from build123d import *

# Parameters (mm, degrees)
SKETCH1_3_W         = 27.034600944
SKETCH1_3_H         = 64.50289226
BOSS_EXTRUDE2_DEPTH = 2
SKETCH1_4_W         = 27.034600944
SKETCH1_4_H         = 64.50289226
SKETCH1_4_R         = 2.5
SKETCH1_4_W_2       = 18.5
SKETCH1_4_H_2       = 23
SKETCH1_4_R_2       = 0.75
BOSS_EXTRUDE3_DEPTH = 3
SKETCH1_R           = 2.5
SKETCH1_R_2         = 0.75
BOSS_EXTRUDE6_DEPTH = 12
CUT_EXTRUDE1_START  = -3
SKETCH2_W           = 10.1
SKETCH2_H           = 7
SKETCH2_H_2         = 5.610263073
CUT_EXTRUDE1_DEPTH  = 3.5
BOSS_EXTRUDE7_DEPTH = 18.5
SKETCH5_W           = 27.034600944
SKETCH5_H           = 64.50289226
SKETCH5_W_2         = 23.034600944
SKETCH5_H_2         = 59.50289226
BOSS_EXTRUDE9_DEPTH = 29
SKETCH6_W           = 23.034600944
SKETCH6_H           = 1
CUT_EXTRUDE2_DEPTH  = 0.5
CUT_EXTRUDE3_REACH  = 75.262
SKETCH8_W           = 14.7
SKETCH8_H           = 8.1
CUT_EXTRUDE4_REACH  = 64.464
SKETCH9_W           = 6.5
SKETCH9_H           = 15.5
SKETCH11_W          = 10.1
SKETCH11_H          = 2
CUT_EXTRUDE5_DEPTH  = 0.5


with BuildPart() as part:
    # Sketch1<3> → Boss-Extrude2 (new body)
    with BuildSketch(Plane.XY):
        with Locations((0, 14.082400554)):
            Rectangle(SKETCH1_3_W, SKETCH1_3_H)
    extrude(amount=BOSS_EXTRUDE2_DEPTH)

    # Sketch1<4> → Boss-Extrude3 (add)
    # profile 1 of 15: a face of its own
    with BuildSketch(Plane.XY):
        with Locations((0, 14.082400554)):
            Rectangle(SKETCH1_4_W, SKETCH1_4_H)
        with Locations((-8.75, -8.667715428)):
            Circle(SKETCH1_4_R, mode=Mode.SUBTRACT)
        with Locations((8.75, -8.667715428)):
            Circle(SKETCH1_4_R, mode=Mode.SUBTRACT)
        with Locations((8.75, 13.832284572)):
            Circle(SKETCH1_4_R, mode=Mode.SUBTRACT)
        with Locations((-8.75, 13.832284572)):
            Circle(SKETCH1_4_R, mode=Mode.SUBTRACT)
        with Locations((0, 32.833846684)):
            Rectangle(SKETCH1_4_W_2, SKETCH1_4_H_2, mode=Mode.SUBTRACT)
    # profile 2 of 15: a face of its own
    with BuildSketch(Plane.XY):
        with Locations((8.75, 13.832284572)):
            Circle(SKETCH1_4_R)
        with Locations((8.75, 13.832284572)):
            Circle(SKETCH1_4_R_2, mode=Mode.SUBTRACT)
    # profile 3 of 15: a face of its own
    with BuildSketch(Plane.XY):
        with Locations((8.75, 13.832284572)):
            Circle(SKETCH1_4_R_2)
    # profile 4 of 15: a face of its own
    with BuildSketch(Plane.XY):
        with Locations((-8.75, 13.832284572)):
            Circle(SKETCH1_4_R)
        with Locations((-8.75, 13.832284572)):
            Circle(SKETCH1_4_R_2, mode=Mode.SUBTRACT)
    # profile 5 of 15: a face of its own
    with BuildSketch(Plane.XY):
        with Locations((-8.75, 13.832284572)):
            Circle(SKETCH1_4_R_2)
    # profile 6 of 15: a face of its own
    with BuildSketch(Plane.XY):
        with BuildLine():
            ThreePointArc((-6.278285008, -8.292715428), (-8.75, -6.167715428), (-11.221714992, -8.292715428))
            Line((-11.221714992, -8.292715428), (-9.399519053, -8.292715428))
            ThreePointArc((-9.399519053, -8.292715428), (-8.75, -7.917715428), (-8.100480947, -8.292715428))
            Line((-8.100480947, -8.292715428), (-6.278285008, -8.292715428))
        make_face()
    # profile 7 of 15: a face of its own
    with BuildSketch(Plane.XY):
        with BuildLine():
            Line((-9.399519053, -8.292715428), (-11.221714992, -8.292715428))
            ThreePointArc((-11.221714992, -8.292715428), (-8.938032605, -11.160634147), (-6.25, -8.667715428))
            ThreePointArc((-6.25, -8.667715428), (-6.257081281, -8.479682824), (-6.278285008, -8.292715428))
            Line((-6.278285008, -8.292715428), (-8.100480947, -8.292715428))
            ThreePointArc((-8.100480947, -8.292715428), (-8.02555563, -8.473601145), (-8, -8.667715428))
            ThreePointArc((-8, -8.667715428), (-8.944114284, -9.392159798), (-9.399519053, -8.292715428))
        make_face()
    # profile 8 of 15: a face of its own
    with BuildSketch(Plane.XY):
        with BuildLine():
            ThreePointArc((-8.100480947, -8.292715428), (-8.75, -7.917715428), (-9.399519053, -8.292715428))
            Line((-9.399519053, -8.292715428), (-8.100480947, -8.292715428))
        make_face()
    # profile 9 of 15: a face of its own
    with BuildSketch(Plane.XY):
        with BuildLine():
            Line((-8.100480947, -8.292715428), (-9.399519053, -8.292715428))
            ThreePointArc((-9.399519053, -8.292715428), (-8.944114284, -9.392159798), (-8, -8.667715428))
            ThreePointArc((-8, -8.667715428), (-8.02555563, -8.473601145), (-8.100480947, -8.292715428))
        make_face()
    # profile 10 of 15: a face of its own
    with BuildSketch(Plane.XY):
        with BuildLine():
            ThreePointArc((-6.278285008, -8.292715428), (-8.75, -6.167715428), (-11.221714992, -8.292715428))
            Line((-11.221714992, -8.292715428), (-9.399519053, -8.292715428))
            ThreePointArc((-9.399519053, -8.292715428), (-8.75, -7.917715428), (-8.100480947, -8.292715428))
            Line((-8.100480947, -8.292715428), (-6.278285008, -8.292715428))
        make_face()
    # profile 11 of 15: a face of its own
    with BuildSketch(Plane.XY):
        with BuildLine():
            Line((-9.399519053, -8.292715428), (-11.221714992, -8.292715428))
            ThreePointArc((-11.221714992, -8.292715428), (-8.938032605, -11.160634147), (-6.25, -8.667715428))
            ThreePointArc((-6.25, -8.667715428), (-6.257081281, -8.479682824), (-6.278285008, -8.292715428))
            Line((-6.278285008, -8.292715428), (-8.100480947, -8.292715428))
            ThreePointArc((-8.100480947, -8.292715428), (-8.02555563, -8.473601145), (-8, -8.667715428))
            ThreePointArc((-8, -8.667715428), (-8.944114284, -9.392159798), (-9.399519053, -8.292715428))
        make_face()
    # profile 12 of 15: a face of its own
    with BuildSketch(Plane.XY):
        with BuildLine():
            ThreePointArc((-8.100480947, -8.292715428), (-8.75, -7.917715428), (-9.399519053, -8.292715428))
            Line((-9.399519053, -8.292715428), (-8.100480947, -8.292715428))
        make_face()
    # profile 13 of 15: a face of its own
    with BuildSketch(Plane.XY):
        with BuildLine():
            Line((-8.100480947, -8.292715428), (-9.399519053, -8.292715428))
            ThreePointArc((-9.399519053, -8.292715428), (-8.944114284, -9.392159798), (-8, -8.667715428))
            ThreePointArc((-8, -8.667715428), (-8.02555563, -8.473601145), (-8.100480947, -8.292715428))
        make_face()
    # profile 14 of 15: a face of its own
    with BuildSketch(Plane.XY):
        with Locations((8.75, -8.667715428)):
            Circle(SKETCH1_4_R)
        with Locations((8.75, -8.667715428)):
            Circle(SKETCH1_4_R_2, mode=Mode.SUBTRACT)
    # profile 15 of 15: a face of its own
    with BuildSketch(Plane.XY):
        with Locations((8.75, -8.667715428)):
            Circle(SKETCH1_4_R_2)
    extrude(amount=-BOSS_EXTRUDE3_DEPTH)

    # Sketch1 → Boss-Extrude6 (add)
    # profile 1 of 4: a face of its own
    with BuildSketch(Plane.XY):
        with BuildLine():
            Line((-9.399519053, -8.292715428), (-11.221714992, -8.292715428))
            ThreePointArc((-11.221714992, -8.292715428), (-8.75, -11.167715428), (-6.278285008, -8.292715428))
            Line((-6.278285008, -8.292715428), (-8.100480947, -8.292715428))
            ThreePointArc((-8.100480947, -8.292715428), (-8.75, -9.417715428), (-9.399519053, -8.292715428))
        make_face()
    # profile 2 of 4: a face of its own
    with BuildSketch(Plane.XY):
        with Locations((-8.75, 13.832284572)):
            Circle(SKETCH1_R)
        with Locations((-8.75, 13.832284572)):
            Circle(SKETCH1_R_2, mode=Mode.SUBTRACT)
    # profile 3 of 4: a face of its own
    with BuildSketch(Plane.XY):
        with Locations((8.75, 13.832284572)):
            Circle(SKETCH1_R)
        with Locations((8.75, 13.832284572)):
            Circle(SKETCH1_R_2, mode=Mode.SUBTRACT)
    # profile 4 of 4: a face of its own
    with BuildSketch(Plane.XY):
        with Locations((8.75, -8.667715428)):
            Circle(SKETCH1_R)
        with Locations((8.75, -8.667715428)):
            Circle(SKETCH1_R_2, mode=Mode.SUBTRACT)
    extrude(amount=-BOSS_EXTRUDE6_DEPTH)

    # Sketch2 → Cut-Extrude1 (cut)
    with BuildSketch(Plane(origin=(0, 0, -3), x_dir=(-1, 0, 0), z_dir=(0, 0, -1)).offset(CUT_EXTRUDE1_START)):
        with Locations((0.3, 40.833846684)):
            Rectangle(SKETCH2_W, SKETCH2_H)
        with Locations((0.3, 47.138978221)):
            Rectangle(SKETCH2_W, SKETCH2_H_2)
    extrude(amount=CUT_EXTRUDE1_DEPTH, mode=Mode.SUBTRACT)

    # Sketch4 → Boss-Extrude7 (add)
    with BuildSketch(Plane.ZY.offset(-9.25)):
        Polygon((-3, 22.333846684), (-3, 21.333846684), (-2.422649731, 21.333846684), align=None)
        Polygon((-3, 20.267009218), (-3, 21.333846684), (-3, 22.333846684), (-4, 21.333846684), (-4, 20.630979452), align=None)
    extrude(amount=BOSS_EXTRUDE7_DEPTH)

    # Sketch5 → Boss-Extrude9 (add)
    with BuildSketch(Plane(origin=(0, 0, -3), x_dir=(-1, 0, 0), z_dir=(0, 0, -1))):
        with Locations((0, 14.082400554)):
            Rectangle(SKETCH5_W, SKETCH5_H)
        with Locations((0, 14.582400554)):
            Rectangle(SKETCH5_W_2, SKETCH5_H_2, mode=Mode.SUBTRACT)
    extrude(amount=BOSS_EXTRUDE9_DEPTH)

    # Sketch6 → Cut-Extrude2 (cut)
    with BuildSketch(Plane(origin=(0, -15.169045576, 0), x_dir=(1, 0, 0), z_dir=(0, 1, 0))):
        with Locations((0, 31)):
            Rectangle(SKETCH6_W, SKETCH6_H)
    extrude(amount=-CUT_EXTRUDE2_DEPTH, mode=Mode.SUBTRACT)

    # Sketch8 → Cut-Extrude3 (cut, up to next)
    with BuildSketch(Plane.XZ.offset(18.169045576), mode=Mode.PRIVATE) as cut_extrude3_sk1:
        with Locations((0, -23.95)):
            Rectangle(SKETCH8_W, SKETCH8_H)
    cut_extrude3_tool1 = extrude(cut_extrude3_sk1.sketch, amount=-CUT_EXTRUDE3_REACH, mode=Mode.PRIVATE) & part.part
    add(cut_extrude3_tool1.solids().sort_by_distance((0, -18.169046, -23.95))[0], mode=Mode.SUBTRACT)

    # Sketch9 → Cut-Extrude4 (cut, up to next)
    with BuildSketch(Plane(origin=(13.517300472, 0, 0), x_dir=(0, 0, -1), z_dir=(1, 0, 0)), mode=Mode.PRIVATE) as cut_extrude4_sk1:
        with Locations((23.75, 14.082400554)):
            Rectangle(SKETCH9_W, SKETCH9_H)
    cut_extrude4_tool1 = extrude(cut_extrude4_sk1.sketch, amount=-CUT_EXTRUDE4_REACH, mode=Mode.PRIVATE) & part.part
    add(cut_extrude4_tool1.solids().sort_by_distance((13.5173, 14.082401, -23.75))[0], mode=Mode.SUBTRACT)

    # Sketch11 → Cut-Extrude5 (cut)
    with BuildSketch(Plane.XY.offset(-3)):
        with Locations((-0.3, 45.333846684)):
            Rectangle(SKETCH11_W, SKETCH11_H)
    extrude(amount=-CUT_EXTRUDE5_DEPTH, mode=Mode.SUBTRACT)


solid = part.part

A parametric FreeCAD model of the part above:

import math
import FreeCAD as App
import Part
import Sketcher
from FreeCAD import Vector
Q = App.Units.Quantity


def add_polygon(sketch, points):
    """Adds a closed chain of lines whose ends are joined by coincident constraints."""
    first, n = sketch.GeometryCount, len(points)
    for a, b in zip(points, points[1:] + points[:1]):
        sketch.addGeometry(Part.LineSegment(App.Vector(*a, 0), App.Vector(*b, 0)), False)
    for i in range(n):
        sketch.addConstraint(Sketcher.Constraint("Coincident", first + i, 2, first + (i + 1) % n, 1))

doc = App.newDocument("Part")
body = doc.addObject("PartDesign::Body", "Body")

# Sketch on XY plane
sketch1 = body.newObject("Sketcher::SketchObject", "Sketch")
sketch1.AttachmentSupport = (doc.getObject("XY_Plane"), [""])
sketch1.MapMode = "FlatFace"
add_polygon(sketch1, [(-13.5173, 46.333847), (-13.5173, -18.169046), (13.5173, -18.169046), (13.5173, 46.333847)])  # lines 0-3
sketch1.addConstraint([
    Sketcher.Constraint("Vertical", 0),
    Sketcher.Constraint("Horizontal", 1),
    Sketcher.Constraint("Vertical", 2),
    Sketcher.Constraint("Horizontal", 3),
    Sketcher.Constraint("DistanceX", 1, 1, 1, 2, 27.034601),
    Sketcher.Constraint("DistanceX", 0, 2, -1, 1, 13.5173),
    Sketcher.Constraint("DistanceY", 0, 2, 0, 1, 64.502892),
    Sketcher.Constraint("DistanceY", 0, 2, -1, 1, 18.169046),
])
pad1 = body.newObject("PartDesign::Pad", "Pad")
pad1.Profile = sketch1
pad1.Length = 2

# Sketch on XY plane
sketch2 = body.newObject("Sketcher::SketchObject", "Sketch001")
sketch2.AttachmentSupport = (doc.getObject("XY_Plane"), [""])
sketch2.MapMode = "FlatFace"
add_polygon(sketch2, [(-13.5173, 46.333847), (-13.5173, -18.169046), (13.5173, -18.169046), (13.5173, 46.333847)])  # lines 0-3
add_polygon(sketch2, [(9.25, 21.333847), (-9.25, 21.333847), (-9.25, 44.333847), (9.25, 44.333847)])  # lines 4-7
sketch2.addConstraint([
    Sketcher.Constraint("Vertical", 0),
    Sketcher.Constraint("Horizontal", 1),
    Sketcher.Constraint("Vertical", 2),
    Sketcher.Constraint("Horizontal", 3),
    Sketcher.Constraint("Horizontal", 4),
    Sketcher.Constraint("Vertical", 5),
    Sketcher.Constraint("Horizontal", 6),
    Sketcher.Constraint("Vertical", 7),
    Sketcher.Constraint("DistanceY", 5, 1, 5, 2, 23.0),
    Sketcher.Constraint("DistanceX", 4, 2, 4, 1, 18.5),
    Sketcher.Constraint("DistanceY", 4, 2, 3, 2, 25.0),
    Sketcher.Constraint("DistanceX", 4, 2, -1, 1, 9.25),
    Sketcher.Constraint("DistanceX", 1, 1, 1, 2, 27.034601),
    Sketcher.Constraint("DistanceX", 0, 2, -1, 1, 13.5173),
    Sketcher.Constraint("DistanceY", 0, 2, 0, 1, 64.502892),
    Sketcher.Constraint("DistanceY", 0, 2, -1, 1, 18.169046),
])
pad2 = body.newObject("PartDesign::Pad", "Pad001")
pad2.Profile = sketch2
pad2.Length = 3
pad2.Reversed = True

# Sketch on XY plane
sketch3 = body.newObject("Sketcher::SketchObject", "Sketch002")
sketch3.AttachmentSupport = (doc.getObject("XY_Plane"), [""])
sketch3.MapMode = "FlatFace"
sketch3.addGeometry([
    Part.LineSegment(Vector(-9.399519, -8.292715, 0), Vector(-11.221715, -8.292715, 0)),  # 0
    Part.ArcOfCircle(Part.Circle(Vector(-8.75, -8.667715, 0), Vector(0, 0, 1), 2.5), math.radians(171.373073), math.radians(368.626927)),  # 1
    Part.LineSegment(Vector(-6.278285, -8.292715, 0), Vector(-8.100481, -8.292715, 0)),  # 2
    Part.ArcOfCircle(Part.Circle(Vector(-8.75, -8.667715, 0), Vector(0, 0, 1), 0.75), math.radians(150), math.radians(390)),  # 3
    Part.Circle(Vector(-8.75, 13.832285, 0), Vector(0, 0, 1), 2.5),  # 4
    Part.Circle(Vector(-8.75, 13.832285, 0), Vector(0, 0, 1), 0.75),  # 5
    Part.Circle(Vector(8.75, 13.832285, 0), Vector(0, 0, 1), 2.5),  # 6
    Part.Circle(Vector(8.75, 13.832285, 0), Vector(0, 0, 1), 0.75),  # 7
    Part.Circle(Vector(8.75, -8.667715, 0), Vector(0, 0, 1), 2.5),  # 8
    Part.Circle(Vector(8.75, -8.667715, 0), Vector(0, 0, 1), 0.75),  # 9
], False)
sketch3.addConstraint([
    Sketcher.Constraint("Coincident", 0, 2, 1, 1),
    Sketcher.Constraint("Coincident", 1, 2, 2, 1),
    Sketcher.Constraint("Coincident", 2, 2, 3, 2),
    Sketcher.Constraint("Coincident", 3, 1, 0, 1),
    Sketcher.Constraint("Horizontal", 0),
    Sketcher.Constraint("Horizontal", 2),
    Sketcher.Constraint("Coincident", 3, 3, 1, 3),
    Sketcher.Constraint("Coincident", 5, 3, 4, 3),
    Sketcher.Constraint("Coincident", 7, 3, 6, 3),
    Sketcher.Constraint("Coincident", 9, 3, 8, 3),
    Sketcher.Constraint("Equal", 1, 4),
    Sketcher.Constraint("Equal", 3, 5),
    Sketcher.Constraint("Equal", 4, 6),
    Sketcher.Constraint("Equal", 5, 7),
    Sketcher.Constraint("Equal", 6, 8),
    Sketcher.Constraint("Equal", 7, 9),
    Sketcher.Constraint("Symmetric", 4, 3, 6, 3, -2),
    Sketcher.Constraint("Symmetric", 1, 3, 8, 3, -2),
    Sketcher.Constraint("Horizontal", 0, 2, 1, 2),
    Sketcher.Constraint("Vertical", 3, 3, 4, 3),
    Sketcher.Constraint("Diameter", 4, 5.0),
    Sketcher.Constraint("Diameter", 5, 1.5),
    Sketcher.Constraint("DistanceY", 1, 3, 4, 3, 22.5),
    Sketcher.Constraint("DistanceX", 4, 3, 6, 3, 17.5),
    Sketcher.Constraint("DistanceY", 1, 3, 0, 2, 0.375),
    Sketcher.Constraint("DistanceY", 1, 3, -1, 1, 8.667715),
])
pad3 = body.newObject("PartDesign::Pad", "Pad002")
pad3.Profile = sketch3
pad3.Length = 12
pad3.Reversed = True

# Sketch on XY plane
sketch4 = body.newObject("Sketcher::SketchObject", "Sketch003")
sketch4.AttachmentSupport = (doc.getObject("XY_Plane"), [""])
sketch4.MapMode = "FlatFace"
add_polygon(sketch4, [(4.75, 37.333847), (-5.35, 37.333847), (-5.35, 49.94411), (4.75, 49.94411)])  # lines 0-3
sketch4.addConstraint([
    Sketcher.Constraint("Horizontal", 0),
    Sketcher.Constraint("Vertical", 1),
    Sketcher.Constraint("Horizontal", 2),
    Sketcher.Constraint("Vertical", 3),
    Sketcher.Constraint("DistanceX", 0, 2, 0, 1, 10.1),
    Sketcher.Constraint("DistanceX", 0, 2, -1, 1, 5.35),
    Sketcher.Constraint("DistanceY", 1, 1, 1, 2, 12.610263),
    Sketcher.Constraint("DistanceY", -1, 1, 1, 2, 49.94411),
])
pocket1 = body.newObject("PartDesign::Pocket", "Pocket")
pocket1.Profile = sketch4
pocket1.Length = 3.5

# Sketch on YZ plane
sketch5 = body.newObject("Sketcher::SketchObject", "Sketch004")
sketch5.AttachmentSupport = (doc.getObject("YZ_Plane"), [""])
sketch5.MapMode = "FlatFace"
sketch5.AttachmentOffset = App.Placement(Vector(0, 0, 9.25), App.Rotation())
add_polygon(sketch5, [(21.333847, -3), (21.333847, -2.42265), (22.333847, -3), (21.333847, -4), (20.630979, -4), (20.267009, -3)])  # lines 0-5
sketch5.addConstraint([
    Sketcher.Constraint("Vertical", 0),
    Sketcher.Constraint("Horizontal", 3),
    Sketcher.Constraint("Horizontal", 5),
    Sketcher.Constraint("Horizontal", 1, 2, 4, 2),
    Sketcher.Constraint("Vertical", 0, 2, 2, 2),
    Sketcher.Constraint("Angle", 1, Q("-30 deg")),
    Sketcher.Constraint("Angle", 2, Q("-135 deg")),
    Sketcher.Constraint("Angle", 4, Q("110 deg")),
    Sketcher.Constraint("DistanceY", 1, 2, -1, 1, 3.0),
    Sketcher.Constraint("DistanceY", 2, 2, -1, 1, 4.0),
    Sketcher.Constraint("DistanceX", 3, 2, 3, 1, 0.702867),
    Sketcher.Constraint("DistanceX", -1, 1, 3, 2, 20.630979),
])
pad4 = body.newObject("PartDesign::Pad", "Pad003")
pad4.Profile = sketch5
pad4.Length = 18.5
pad4.Reversed = True

# Sketch on XY plane
sketch6 = body.newObject("Sketcher::SketchObject", "Sketch005")
sketch6.AttachmentSupport = (doc.getObject("XY_Plane"), [""])
sketch6.MapMode = "FlatFace"
sketch6.AttachmentOffset = App.Placement(Vector(0, 0, -3), App.Rotation())
add_polygon(sketch6, [(13.5173, 46.333847), (13.5173, -18.169046), (-13.5173, -18.169046), (-13.5173, 46.333847)])  # lines 0-3
add_polygon(sketch6, [(-11.5173, -15.169046), (11.5173, -15.169046), (11.5173, 44.333847), (-11.5173, 44.333847)])  # lines 4-7
sketch6.addConstraint([
    Sketcher.Constraint("Vertical", 0),
    Sketcher.Constraint("Horizontal", 1),
    Sketcher.Constraint("Vertical", 2),
    Sketcher.Constraint("Horizontal", 3),
    Sketcher.Constraint("Horizontal", 4),
    Sketcher.Constraint("Vertical", 5),
    Sketcher.Constraint("Horizontal", 6),
    Sketcher.Constraint("Vertical", 7),
    Sketcher.Constraint("DistanceX", 4, 2, 0, 2, 2.0),
    Sketcher.Constraint("DistanceY", 0, 2, 4, 2, 3.0),
    Sketcher.Constraint("DistanceY", 5, 2, 3, 2, 2.0),
    Sketcher.Constraint("DistanceX", 2, 2, 6, 2, 2.0),
    Sketcher.Constraint("DistanceX", 1, 2, 1, 1, 27.034601),
    Sketcher.Constraint("DistanceX", -1, 1, 0, 2, 13.5173),
    Sketcher.Constraint("DistanceY", 0, 2, 0, 1, 64.502892),
    Sketcher.Constraint("DistanceY", 0, 2, -1, 1, 18.169046),
])
pad5 = body.newObject("PartDesign::Pad", "Pad004")
pad5.Profile = sketch6
pad5.Length = 29
pad5.Reversed = True

# Sketch on XZ plane
sketch7 = body.newObject("Sketcher::SketchObject", "Sketch006")
sketch7.AttachmentSupport = (doc.getObject("XZ_Plane"), [""])
sketch7.MapMode = "FlatFace"
sketch7.AttachmentOffset = App.Placement(Vector(0, 0, 15.169046), App.Rotation())
add_polygon(sketch7, [(-11.5173, -31.5), (-11.5173, -30.5), (11.5173, -30.5), (11.5173, -31.5)])  # lines 0-3
sketch7.addConstraint([
    Sketcher.Constraint("Vertical", 0),
    Sketcher.Constraint("Horizontal", 1),
    Sketcher.Constraint("Vertical", 2),
    Sketcher.Constraint("Horizontal", 3),
    Sketcher.Constraint("DistanceY", 0, 1, 0, 2, 1.0),
    Sketcher.Constraint("DistanceY", 0, 2, -1, 1, 30.5),
    Sketcher.Constraint("DistanceX", 1, 1, 1, 2, 23.034601),
    Sketcher.Constraint("DistanceX", 0, 2, -1, 1, 11.5173),
])
pocket2 = body.newObject("PartDesign::Pocket", "Pocket001")
pocket2.Profile = sketch7
pocket2.Length = 0.5
pocket2.Reversed = True

# Sketch on XZ plane
sketch8 = body.newObject("Sketcher::SketchObject", "Sketch007")
sketch8.AttachmentSupport = (doc.getObject("XZ_Plane"), [""])
sketch8.MapMode = "FlatFace"
sketch8.AttachmentOffset = App.Placement(Vector(0, 0, 18.169046), App.Rotation())
add_polygon(sketch8, [(-7.35, -19.9), (-7.35, -28), (7.35, -28), (7.35, -19.9)])  # lines 0-3
sketch8.addConstraint([
    Sketcher.Constraint("Vertical", 0),
    Sketcher.Constraint("Horizontal", 1),
    Sketcher.Constraint("Vertical", 2),
    Sketcher.Constraint("Horizontal", 3),
    Sketcher.Constraint("DistanceX", 1, 1, 1, 2, 14.7),
    Sketcher.Constraint("DistanceY", 0, 2, 0, 1, 8.1),
    Sketcher.Constraint("DistanceY", 0, 2, -1, 1, 28.0),
    Sketcher.Constraint("DistanceX", 0, 2, -1, 1, 7.35),
])
pocket3 = body.newObject("PartDesign::Pocket", "Pocket002")
pocket3.Profile = sketch8
pocket3.Type = "UpToFirst"

# Sketch on YZ plane
sketch9 = body.newObject("Sketcher::SketchObject", "Sketch008")
sketch9.AttachmentSupport = (doc.getObject("YZ_Plane"), [""])
sketch9.MapMode = "FlatFace"
sketch9.AttachmentOffset = App.Placement(Vector(0, 0, 13.5173), App.Rotation())
add_polygon(sketch9, [(21.832401, -20.5), (6.332401, -20.5), (6.332401, -27), (21.832401, -27)])  # lines 0-3
sketch9.addConstraint([
    Sketcher.Constraint("Horizontal", 0),
    Sketcher.Constraint("Vertical", 1),
    Sketcher.Constraint("Horizontal", 2),
    Sketcher.Constraint("Vertical", 3),
    Sketcher.Constraint("DistanceX", 0, 2, 0, 1, 15.5),
    Sketcher.Constraint("DistanceY", 1, 2, 1, 1, 6.5),
    Sketcher.Constraint("DistanceY", 1, 2, -1, 1, 27.0),
    Sketcher.Constraint("DistanceX", -1, 1, 0, 2, 6.332401),
])
pocket4 = body.newObject("PartDesign::Pocket", "Pocket003")
pocket4.Profile = sketch9
pocket4.Type = "UpToFirst"

# Sketch on XY plane
sketch10 = body.newObject("Sketcher::SketchObject", "Sketch009")
sketch10.AttachmentSupport = (doc.getObject("XY_Plane"), [""])
sketch10.MapMode = "FlatFace"
sketch10.AttachmentOffset = App.Placement(Vector(0, 0, -3), App.Rotation())
add_polygon(sketch10, [(-5.35, 46.333847), (-5.35, 44.333847), (4.75, 44.333847), (4.75, 46.333847)])  # lines 0-3
sketch10.addConstraint([
    Sketcher.Constraint("Vertical", 0),
    Sketcher.Constraint("Horizontal", 1),
    Sketcher.Constraint("Vertical", 2),
    Sketcher.Constraint("Horizontal", 3),
    Sketcher.Constraint("DistanceY", 0, 2, 0, 1, 2.0),
    Sketcher.Constraint("DistanceX", 1, 1, 1, 2, 10.1),
    Sketcher.Constraint("DistanceX", 0, 2, -1, 1, 5.35),
    Sketcher.Constraint("DistanceY", -1, 1, 0, 2, 44.333847),
])
pocket5 = body.newObject("PartDesign::Pocket", "Pocket004")
pocket5.Profile = sketch10
pocket5.Length = 0.5

doc.recompute()
